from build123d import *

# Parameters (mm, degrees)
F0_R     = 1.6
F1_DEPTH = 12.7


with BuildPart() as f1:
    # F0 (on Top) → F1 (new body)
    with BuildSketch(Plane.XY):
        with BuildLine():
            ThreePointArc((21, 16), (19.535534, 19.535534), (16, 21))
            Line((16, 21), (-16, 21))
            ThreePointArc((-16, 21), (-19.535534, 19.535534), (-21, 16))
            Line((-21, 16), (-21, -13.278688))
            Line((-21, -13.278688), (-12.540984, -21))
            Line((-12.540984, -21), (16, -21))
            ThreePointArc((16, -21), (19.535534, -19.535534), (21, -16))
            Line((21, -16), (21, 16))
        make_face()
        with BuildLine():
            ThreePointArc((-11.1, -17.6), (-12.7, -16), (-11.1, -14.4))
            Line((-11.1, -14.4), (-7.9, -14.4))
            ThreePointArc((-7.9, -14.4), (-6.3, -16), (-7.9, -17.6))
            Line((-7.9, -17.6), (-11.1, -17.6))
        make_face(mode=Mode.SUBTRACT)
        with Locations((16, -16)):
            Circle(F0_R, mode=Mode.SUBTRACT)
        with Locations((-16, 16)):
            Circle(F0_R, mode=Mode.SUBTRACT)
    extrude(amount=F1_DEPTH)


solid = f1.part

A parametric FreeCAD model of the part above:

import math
import FreeCAD as App
import Part
import Sketcher

doc = App.newDocument("Part")
body = doc.addObject("PartDesign::Body", "Body")

# Sketch on XY plane
sketch1 = body.newObject("Sketcher::SketchObject", "Sketch")
sketch1.AttachmentSupport = (doc.getObject("XY_Plane"), [""])
sketch1.MapMode = "FlatFace"
sketch1.addGeometry(Part.ArcOfCircle(Part.Circle(App.Vector(16, 16, 0), App.Vector(0, 0, 1), 5), math.radians(-0.000004), math.radians(90.000004)), False)
sketch1.addGeometry(Part.LineSegment(App.Vector(16, 21, 0), App.Vector(-16, 21, 0)), False)
sketch1.addGeometry(Part.ArcOfCircle(Part.Circle(App.Vector(-16, 16, 0), App.Vector(0, 0, 1), 5), math.radians(89.999996), math.radians(180.000004)), False)
sketch1.addGeometry(Part.LineSegment(App.Vector(-21, 16, 0), App.Vector(-21, -13.278688, 0)), False)
sketch1.addGeometry(Part.LineSegment(App.Vector(-21, -13.278688, 0), App.Vector(-12.540984, -21, 0)), False)
sketch1.addGeometry(Part.LineSegment(App.Vector(-12.540984, -21, 0), App.Vector(16, -21, 0)), False)
sketch1.addGeometry(Part.ArcOfCircle(Part.Circle(App.Vector(16, -16, 0), App.Vector(0, 0, 1), 5), math.radians(-90.000004), math.radians(0.000004)), False)
sketch1.addGeometry(Part.LineSegment(App.Vector(21, -16, 0), App.Vector(21, 16, 0)), False)
sketch1.addGeometry(Part.LineSegment(App.Vector(-7.9, -17.6, 0), App.Vector(-11.1, -17.6, 0)), False)
sketch1.addGeometry(Part.ArcOfCircle(Part.Circle(App.Vector(-11.1, -16, 0), App.Vector(0, 0, 1), 1.6), math.radians(90), math.radians(270)), False)
sketch1.addGeometry(Part.LineSegment(App.Vector(-11.1, -14.4, 0), App.Vector(-7.9, -14.4, 0)), False)
sketch1.addGeometry(Part.ArcOfCircle(Part.Circle(App.Vector(-7.9, -16, 0), App.Vector(0, 0, 1), 1.6), math.radians(-90), math.radians(90)), False)
sketch1.addGeometry(Part.Circle(App.Vector(16, -16, 0), App.Vector(0, 0, 1), 1.6), False)
sketch1.addGeometry(Part.Circle(App.Vector(-16, 16, 0), App.Vector(0, 0, 1), 1.6), False)
sketch1.addConstraint(Sketcher.Constraint("Tangent", 0, 2, 1, 1))
sketch1.addConstraint(Sketcher.Constraint("Tangent", 1, 2, 2, 1))
sketch1.addConstraint(Sketcher.Constraint("Tangent", 2, 2, 3, 1))
sketch1.addConstraint(Sketcher.Constraint("Coincident", 3, 2, 4, 1))
sketch1.addConstraint(Sketcher.Constraint("Coincident", 4, 2, 5, 1))
sketch1.addConstraint(Sketcher.Constraint("Tangent", 5, 2, 6, 1))
sketch1.addConstraint(Sketcher.Constraint("Tangent", 6, 2, 7, 1))
sketch1.addConstraint(Sketcher.Constraint("Tangent", 7, 2, 0, 1))
sketch1.addConstraint(Sketcher.Constraint("Tangent", 8, 2, 9, 2))
sketch1.addConstraint(Sketcher.Constraint("Tangent", 9, 1, 10, 1))
sketch1.addConstraint(Sketcher.Constraint("Tangent", 10, 2, 11, 2))
sketch1.addConstraint(Sketcher.Constraint("Tangent", 11, 1, 8, 1))
sketch1.addConstraint(Sketcher.Constraint("Horizontal", 1))
sketch1.addConstraint(Sketcher.Constraint("Vertical", 3))
sketch1.addConstraint(Sketcher.Constraint("Horizontal", 5))
sketch1.addConstraint(Sketcher.Constraint("Vertical", 7))
sketch1.addConstraint(Sketcher.Constraint("Horizontal", 8))
sketch1.addConstraint(Sketcher.Constraint("Horizontal", 10))
sketch1.addConstraint(Sketcher.Constraint("Coincident", 12, 3, 6, 3))
sketch1.addConstraint(Sketcher.Constraint("Coincident", 13, 3, 2, 3))
sketch1.addConstraint(Sketcher.Constraint("Equal", 0, 2))
sketch1.addConstraint(Sketcher.Constraint("Equal", 2, 6))
sketch1.addConstraint(Sketcher.Constraint("Equal", 11, 12))
sketch1.addConstraint(Sketcher.Constraint("Equal", 12, 13))
sketch1.addConstraint(Sketcher.Constraint("Symmetric", 2, 3, 6, 3, -1, 1))
sketch1.addConstraint(Sketcher.Constraint("Horizontal", 6, 3, 9, 3))
sketch1.addConstraint(Sketcher.Constraint("Equal", 1, 7))
sketch1.addConstraint(Sketcher.Constraint("Radius", 0, 5.0))
sketch1.addConstraint(Sketcher.Constraint("Diameter", 12, 3.2))
sketch1.addConstraint(Sketcher.Constraint("DistanceX", 1, 2, 1, 1, 32.0))
sketch1.addConstraint(Sketcher.Constraint("DistanceX", 8, 2, 8, 1, 3.2))
sketch1.addConstraint(Sketcher.Constraint("DistanceX", 9, 3, -1, 1, 11.1))
sketch1.addConstraint(Sketcher.Constraint("DistanceY", 3, 2, 3, 1, 29.278688))
sketch1.addConstraint(Sketcher.Constraint("DistanceX", 5, 1, 5, 2, 28.540984))
pad1 = body.newObject("PartDesign::Pad", "Pad")
pad1.Profile = sketch1
pad1.Length = 12.7

doc.recompute()
